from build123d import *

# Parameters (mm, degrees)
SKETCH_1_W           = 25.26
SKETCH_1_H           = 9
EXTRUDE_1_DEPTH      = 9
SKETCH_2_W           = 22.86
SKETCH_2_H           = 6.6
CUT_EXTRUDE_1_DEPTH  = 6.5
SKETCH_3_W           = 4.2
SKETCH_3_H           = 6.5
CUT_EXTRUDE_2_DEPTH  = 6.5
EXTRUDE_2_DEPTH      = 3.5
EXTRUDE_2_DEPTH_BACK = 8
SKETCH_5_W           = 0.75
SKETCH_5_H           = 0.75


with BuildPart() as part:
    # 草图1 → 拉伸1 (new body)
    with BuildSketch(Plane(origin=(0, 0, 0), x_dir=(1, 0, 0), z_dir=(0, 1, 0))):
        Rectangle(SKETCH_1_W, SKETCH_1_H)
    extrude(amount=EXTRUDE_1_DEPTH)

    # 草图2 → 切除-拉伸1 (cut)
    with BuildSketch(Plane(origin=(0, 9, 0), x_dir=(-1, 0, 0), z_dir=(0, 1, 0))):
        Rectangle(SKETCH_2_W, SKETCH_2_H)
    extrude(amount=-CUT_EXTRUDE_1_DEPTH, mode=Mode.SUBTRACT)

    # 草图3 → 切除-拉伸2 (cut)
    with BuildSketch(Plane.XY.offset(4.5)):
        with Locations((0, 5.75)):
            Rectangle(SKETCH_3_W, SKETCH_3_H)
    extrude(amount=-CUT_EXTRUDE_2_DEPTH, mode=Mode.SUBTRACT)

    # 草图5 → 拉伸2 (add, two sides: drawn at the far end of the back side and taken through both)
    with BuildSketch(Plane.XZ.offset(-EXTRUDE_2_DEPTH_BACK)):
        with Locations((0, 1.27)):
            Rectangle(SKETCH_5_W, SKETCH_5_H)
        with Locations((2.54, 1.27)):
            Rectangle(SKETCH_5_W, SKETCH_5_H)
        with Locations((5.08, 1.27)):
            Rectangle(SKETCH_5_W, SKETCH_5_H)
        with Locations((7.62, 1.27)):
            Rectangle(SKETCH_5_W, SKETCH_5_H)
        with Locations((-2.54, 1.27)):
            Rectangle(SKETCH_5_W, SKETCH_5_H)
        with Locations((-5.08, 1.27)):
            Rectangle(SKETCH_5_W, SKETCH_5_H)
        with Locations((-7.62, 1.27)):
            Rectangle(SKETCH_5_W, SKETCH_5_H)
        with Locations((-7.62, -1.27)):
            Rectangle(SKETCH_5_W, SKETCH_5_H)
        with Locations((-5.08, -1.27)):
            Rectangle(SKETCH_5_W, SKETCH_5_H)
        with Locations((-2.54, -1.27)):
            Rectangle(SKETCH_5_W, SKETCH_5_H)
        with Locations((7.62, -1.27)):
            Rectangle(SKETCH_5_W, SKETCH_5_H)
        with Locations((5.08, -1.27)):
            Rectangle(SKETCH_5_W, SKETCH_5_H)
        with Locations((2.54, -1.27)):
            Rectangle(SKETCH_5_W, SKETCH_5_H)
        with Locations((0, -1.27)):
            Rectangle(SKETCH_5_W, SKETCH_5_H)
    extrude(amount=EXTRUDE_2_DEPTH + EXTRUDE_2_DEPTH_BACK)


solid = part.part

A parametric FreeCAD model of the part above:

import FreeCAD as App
import Part
import Sketcher
from FreeCAD import Vector


def add_polygon(sketch, points):
    """Adds a closed chain of lines whose ends are joined by coincident constraints."""
    first, n = sketch.GeometryCount, len(points)
    for a, b in zip(points, points[1:] + points[:1]):
        sketch.addGeometry(Part.LineSegment(App.Vector(*a, 0), App.Vector(*b, 0)), False)
    for i in range(n):
        sketch.addConstraint(Sketcher.Constraint("Coincident", first + i, 2, first + (i + 1) % n, 1))

doc = App.newDocument("Part")
params = doc.addObject("Spreadsheet::Sheet", "Params")
for row, (alias, value) in enumerate([
    ("sketch1_height", "9 mm"),
    ("sketch1_width", "25.26 mm"),
    ("pad1_length", "9 mm"),
    ("sketch2_height", "6.6 mm"),
    ("sketch2_width", "22.86 mm"),
    ("pocket1_length", "6.5 mm"),
    ("sketch3_width", "4.2 mm"),
    ("sketch3_height", "6.5 mm"),
    ("pocket2_length", "6.5 mm"),
    ("sketch4_width", "0.75 mm"),
    ("pad2_length", "3.5 mm"),
    ("pad2_length2", "8 mm"),
], start=1):
    params.set(f"A{row}", alias)
    params.set(f"B{row}", "=" + value)
    params.setAlias(f"B{row}", alias)

body = doc.addObject("PartDesign::Body", "Body")

# Sketch on XZ plane
sketch1 = body.newObject("Sketcher::SketchObject", "Sketch")
sketch1.AttachmentSupport = (doc.getObject("XZ_Plane"), [""])
sketch1.MapMode = "FlatFace"
add_polygon(sketch1, [(-13, -4), (-13, 4), (13, 4), (13, -4)])  # lines 0-3
sketch1.addConstraint(Sketcher.Constraint("Vertical", 0))
sketch1.addConstraint(Sketcher.Constraint("Horizontal", 1))
sketch1.addConstraint(Sketcher.Constraint("Vertical", 2))
sketch1.addConstraint(Sketcher.Constraint("Horizontal", 3))
sketch1.addConstraint(Sketcher.Constraint("Symmetric", 0, 2, 2, 2, -1, 1))
sketch1.addConstraint(Sketcher.Constraint("DistanceY", 0, 1, 0, 2, 9.0))
sketch1.addConstraint(Sketcher.Constraint("DistanceX", 1, 1, 1, 2, 25.26))
sketch1.setExpression("Constraints[9]", "Params.sketch1_height")
sketch1.setExpression("Constraints[10]", "Params.sketch1_width")
pad1 = body.newObject("PartDesign::Pad", "Pad")
pad1.Profile = sketch1
pad1.setExpression("Length", "Params.pad1_length")
pad1.Reversed = True

# Sketch on XZ plane
sketch2 = body.newObject("Sketcher::SketchObject", "Sketch001")
sketch2.AttachmentSupport = (doc.getObject("XZ_Plane"), [""])
sketch2.MapMode = "FlatFace"
sketch2.AttachmentOffset = App.Placement(Vector(0, 0, -9), App.Rotation())
add_polygon(sketch2, [(11, 3), (11, -3), (-11, -3), (-11, 3)])  # lines 0-3
sketch2.addConstraint(Sketcher.Constraint("Vertical", 0))
sketch2.addConstraint(Sketcher.Constraint("Horizontal", 1))
sketch2.addConstraint(Sketcher.Constraint("Vertical", 2))
sketch2.addConstraint(Sketcher.Constraint("Horizontal", 3))
sketch2.addConstraint(Sketcher.Constraint("Symmetric", 0, 2, 2, 2, -1, 1))
sketch2.addConstraint(Sketcher.Constraint("DistanceY", 0, 2, 0, 1, 6.6))
sketch2.addConstraint(Sketcher.Constraint("DistanceX", 1, 2, 1, 1, 22.86))
sketch2.setExpression("Constraints[9]", "Params.sketch2_height")
sketch2.setExpression("Constraints[10]", "Params.sketch2_width")
pocket1 = body.newObject("PartDesign::Pocket", "Pocket")
pocket1.Profile = sketch2
pocket1.setExpression("Length", "Params.pocket1_length")
pocket1.Reversed = True

# Sketch on XY plane
sketch3 = body.newObject("Sketcher::SketchObject", "Sketch002")
sketch3.AttachmentSupport = (doc.getObject("XY_Plane"), [""])
sketch3.MapMode = "FlatFace"
sketch3.AttachmentOffset = App.Placement(Vector(0, 0, 4.5), App.Rotation())
add_polygon(sketch3, [(-2.1, 9), (-2.1, 2.5), (2.1, 2.5), (2.1, 9)])  # lines 0-3
sketch3.addConstraint(Sketcher.Constraint("Vertical", 0))
sketch3.addConstraint(Sketcher.Constraint("Horizontal", 1))
sketch3.addConstraint(Sketcher.Constraint("Vertical", 2))
sketch3.addConstraint(Sketcher.Constraint("Horizontal", 3))
sketch3.addConstraint(Sketcher.Constraint("DistanceX", 1, 1, 1, 2, 4.2))
sketch3.addConstraint(Sketcher.Constraint("DistanceY", 0, 2, 0, 1, 6.5))
sketch3.addConstraint(Sketcher.Constraint("DistanceY", -1, 1, 2, 2, 9.0))
sketch3.addConstraint(Sketcher.Constraint("DistanceX", 0, 2, -1, 1, 2.1))
sketch3.setExpression("Constraints[8]", "Params.sketch3_width")
sketch3.setExpression("Constraints[9]", "Params.sketch3_height")
pocket2 = body.newObject("PartDesign::Pocket", "Pocket001")
pocket2.Profile = sketch3
pocket2.setExpression("Length", "Params.pocket2_length")

# Sketch on XZ plane
sketch4 = body.newObject("Sketcher::SketchObject", "Sketch003")
sketch4.AttachmentSupport = (doc.getObject("XZ_Plane"), [""])
sketch4.MapMode = "FlatFace"
add_polygon(sketch4, [(-0.4, 1.6), (-0.4, 0.9), (0.4, 0.9), (0.4, 1.6)])  # lines 0-3
add_polygon(sketch4, [(2.2, 1.6), (2.2, 0.9), (2.9, 0.9), (2.9, 1.6)])  # lines 4-7
add_polygon(sketch4, [(4.7, 1.6), (4.7, 0.9), (5.5, 0.9), (5.5, 1.6)])  # lines 8-11
add_polygon(sketch4, [(7.2, 1.6), (7.2, 0.9), (8, 0.9), (8, 1.6)])  # lines 12-15
add_polygon(sketch4, [(-2.9, 1.6), (-2.9, 0.9), (-2.2, 0.9), (-2.2, 1.6)])  # lines 16-19
add_polygon(sketch4, [(-5.5, 1.6), (-5.5, 0.9), (-4.7, 0.9), (-4.7, 1.6)])  # lines 20-23
add_polygon(sketch4, [(-8, 1.6), (-8, 0.9), (-7.2, 0.9), (-7.2, 1.6)])  # lines 24-27
add_polygon(sketch4, [(-8, -0.9), (-8, -1.6), (-7.2, -1.6), (-7.2, -0.9)])  # lines 28-31
add_polygon(sketch4, [(-5.5, -0.9), (-5.5, -1.6), (-4.7, -1.6), (-4.7, -0.9)])  # lines 32-35
add_polygon(sketch4, [(-2.9, -0.9), (-2.9, -1.6), (-2.2, -1.6), (-2.2, -0.9)])  # lines 36-39
add_polygon(sketch4, [(7.2, -0.9), (7.2, -1.6), (8, -1.6), (8, -0.9)])  # lines 40-43
add_polygon(sketch4, [(4.7, -0.9), (4.7, -1.6), (5.5, -1.6), (5.5, -0.9)])  # lines 44-47
add_polygon(sketch4, [(2.2, -0.9), (2.2, -1.6), (2.9, -1.6), (2.9, -0.9)])  # lines 48-51
add_polygon(sketch4, [(-0.4, -0.9), (-0.4, -1.6), (0.4, -1.6), (0.4, -0.9)])  # lines 52-55
sketch4.addConstraint(Sketcher.Constraint("Vertical", 0))
sketch4.addConstraint(Sketcher.Constraint("Horizontal", 1))
sketch4.addConstraint(Sketcher.Constraint("Vertical", 2))
sketch4.addConstraint(Sketcher.Constraint("Horizontal", 3))
sketch4.addConstraint(Sketcher.Constraint("Vertical", 4))
sketch4.addConstraint(Sketcher.Constraint("Horizontal", 5))
sketch4.addConstraint(Sketcher.Constraint("Vertical", 6))
sketch4.addConstraint(Sketcher.Constraint("Horizontal", 7))
sketch4.addConstraint(Sketcher.Constraint("Vertical", 8))
sketch4.addConstraint(Sketcher.Constraint("Horizontal", 9))
sketch4.addConstraint(Sketcher.Constraint("Vertical", 10))
sketch4.addConstraint(Sketcher.Constraint("Horizontal", 11))
sketch4.addConstraint(Sketcher.Constraint("Vertical", 12))
sketch4.addConstraint(Sketcher.Constraint("Horizontal", 13))
sketch4.addConstraint(Sketcher.Constraint("Vertical", 14))
sketch4.addConstraint(Sketcher.Constraint("Horizontal", 15))
sketch4.addConstraint(Sketcher.Constraint("Vertical", 16))
sketch4.addConstraint(Sketcher.Constraint("Horizontal", 17))
sketch4.addConstraint(Sketcher.Constraint("Vertical", 18))
sketch4.addConstraint(Sketcher.Constraint("Horizontal", 19))
sketch4.addConstraint(Sketcher.Constraint("Vertical", 20))
sketch4.addConstraint(Sketcher.Constraint("Horizontal", 21))
sketch4.addConstraint(Sketcher.Constraint("Vertical", 22))
sketch4.addConstraint(Sketcher.Constraint("Horizontal", 23))
sketch4.addConstraint(Sketcher.Constraint("Vertical", 24))
sketch4.addConstraint(Sketcher.Constraint("Horizontal", 25))
sketch4.addConstraint(Sketcher.Constraint("Vertical", 26))
sketch4.addConstraint(Sketcher.Constraint("Horizontal", 27))
sketch4.addConstraint(Sketcher.Constraint("Vertical", 28))
sketch4.addConstraint(Sketcher.Constraint("Horizontal", 29))
sketch4.addConstraint(Sketcher.Constraint("Vertical", 30))
sketch4.addConstraint(Sketcher.Constraint("Horizontal", 31))
sketch4.addConstraint(Sketcher.Constraint("Vertical", 32))
sketch4.addConstraint(Sketcher.Constraint("Horizontal", 33))
sketch4.addConstraint(Sketcher.Constraint("Vertical", 34))
sketch4.addConstraint(Sketcher.Constraint("Horizontal", 35))
sketch4.addConstraint(Sketcher.Constraint("Vertical", 36))
sketch4.addConstraint(Sketcher.Constraint("Horizontal", 37))
sketch4.addConstraint(Sketcher.Constraint("Vertical", 38))
sketch4.addConstraint(Sketcher.Constraint("Horizontal", 39))
sketch4.addConstraint(Sketcher.Constraint("Vertical", 40))
sketch4.addConstraint(Sketcher.Constraint("Horizontal", 41))
sketch4.addConstraint(Sketcher.Constraint("Vertical", 42))
sketch4.addConstraint(Sketcher.Constraint("Horizontal", 43))
sketch4.addConstraint(Sketcher.Constraint("Vertical", 44))
sketch4.addConstraint(Sketcher.Constraint("Horizontal", 45))
sketch4.addConstraint(Sketcher.Constraint("Vertical", 46))
sketch4.addConstraint(Sketcher.Constraint("Horizontal", 47))
sketch4.addConstraint(Sketcher.Constraint("Vertical", 48))
sketch4.addConstraint(Sketcher.Constraint("Horizontal", 49))
sketch4.addConstraint(Sketcher.Constraint("Vertical", 50))
sketch4.addConstraint(Sketcher.Constraint("Horizontal", 51))
sketch4.addConstraint(Sketcher.Constraint("Vertical", 52))
sketch4.addConstraint(Sketcher.Constraint("Horizontal", 53))
sketch4.addConstraint(Sketcher.Constraint("Vertical", 54))
sketch4.addConstraint(Sketcher.Constraint("Horizontal", 55))
sketch4.addConstraint(Sketcher.Constraint("Symmetric", 14, 2, 28, 2, -1, 1))
sketch4.addConstraint(Sketcher.Constraint("Symmetric", 12, 2, 30, 2, -1, 1))
sketch4.addConstraint(Sketcher.Constraint("Symmetric", 10, 2, 32, 2, -1, 1))
sketch4.addConstraint(Sketcher.Constraint("Symmetric", 8, 2, 34, 2, -1, 1))
sketch4.addConstraint(Sketcher.Constraint("Symmetric", 6, 2, 36, 2, -1, 1))
sketch4.addConstraint(Sketcher.Constraint("Symmetric", 4, 2, 38, 2, -1, 1))
sketch4.addConstraint(Sketcher.Constraint("Symmetric", 26, 2, 40, 2, -1, 1))
sketch4.addConstraint(Sketcher.Constraint("Symmetric", 24, 2, 42, 2, -1, 1))
sketch4.addConstraint(Sketcher.Constraint("Symmetric", 22, 2, 44, 2, -1, 1))
sketch4.addConstraint(Sketcher.Constraint("Symmetric", 20, 2, 46, 2, -1, 1))
sketch4.addConstraint(Sketcher.Constraint("Symmetric", 18, 2, 48, 2, -1, 1))
sketch4.addConstraint(Sketcher.Constraint("Symmetric", 16, 2, 50, 2, -1, 1))
sketch4.addConstraint(Sketcher.Constraint("Symmetric", 2, 2, 52, 2, -1, 1))
sketch4.addConstraint(Sketcher.Constraint("Symmetric", 0, 2, 54, 2, -1, 1))
sketch4.addConstraint(Sketcher.Constraint("Symmetric", 5, 2, 16, 2, -2))
sketch4.addConstraint(Sketcher.Constraint("Symmetric", 7, 2, 18, 2, -2))
sketch4.addConstraint(Sketcher.Constraint("Symmetric", 9, 2, 20, 2, -2))
sketch4.addConstraint(Sketcher.Constraint("Symmetric", 11, 2, 22, 2, -2))
sketch4.addConstraint(Sketcher.Constraint("Symmetric", 13, 2, 24, 2, -2))
sketch4.addConstraint(Sketcher.Constraint("Symmetric", 15, 2, 26, 2, -2))
sketch4.addConstraint(Sketcher.Constraint("Horizontal", 1, 2, 4, 2))
sketch4.addConstraint(Sketcher.Constraint("Horizontal", 3, 2, 6, 2))
sketch4.addConstraint(Sketcher.Constraint("Horizontal", 5, 2, 8, 2))
sketch4.addConstraint(Sketcher.Constraint("Horizontal", 7, 2, 10, 2))
sketch4.addConstraint(Sketcher.Constraint("Horizontal", 9, 2, 12, 2))
sketch4.addConstraint(Sketcher.Constraint("Horizontal", 11, 2, 14, 2))
sketch4.addConstraint(Sketcher.Constraint("Vertical", 3, 2, 52, 2))
sketch4.addConstraint(Sketcher.Constraint("Equal", 3, 5))
sketch4.addConstraint(Sketcher.Constraint("Equal", 7, 9))
sketch4.addConstraint(Sketcher.Constraint("Equal", 11, 13))
sketch4.addConstraint(Sketcher.Constraint("Equal", 55, 0))
sketch4.addConstraint(Sketcher.Constraint("DistanceX", 1, 1, 1, 2, 0.75))
sketch4.addConstraint(Sketcher.Constraint("DistanceX", 1, 2, 4, 2, 1.79))
sketch4.addConstraint(Sketcher.Constraint("DistanceX", 5, 2, 8, 2, 1.79))
sketch4.addConstraint(Sketcher.Constraint("DistanceX", 9, 2, 12, 2, 1.79))
sketch4.addConstraint(Sketcher.Constraint("DistanceY", 28, 2, 24, 2, 2.54))
sketch4.setExpression("Constraints[143]", "Params.sketch4_width")
pad2 = body.newObject("PartDesign::Pad", "Pad001")
pad2.Profile = sketch4
pad2.Type = "TwoLengths"
pad2.setExpression("Length", "Params.pad2_length")
pad2.setExpression("Length2", "Params.pad2_length2")

doc.recompute()
